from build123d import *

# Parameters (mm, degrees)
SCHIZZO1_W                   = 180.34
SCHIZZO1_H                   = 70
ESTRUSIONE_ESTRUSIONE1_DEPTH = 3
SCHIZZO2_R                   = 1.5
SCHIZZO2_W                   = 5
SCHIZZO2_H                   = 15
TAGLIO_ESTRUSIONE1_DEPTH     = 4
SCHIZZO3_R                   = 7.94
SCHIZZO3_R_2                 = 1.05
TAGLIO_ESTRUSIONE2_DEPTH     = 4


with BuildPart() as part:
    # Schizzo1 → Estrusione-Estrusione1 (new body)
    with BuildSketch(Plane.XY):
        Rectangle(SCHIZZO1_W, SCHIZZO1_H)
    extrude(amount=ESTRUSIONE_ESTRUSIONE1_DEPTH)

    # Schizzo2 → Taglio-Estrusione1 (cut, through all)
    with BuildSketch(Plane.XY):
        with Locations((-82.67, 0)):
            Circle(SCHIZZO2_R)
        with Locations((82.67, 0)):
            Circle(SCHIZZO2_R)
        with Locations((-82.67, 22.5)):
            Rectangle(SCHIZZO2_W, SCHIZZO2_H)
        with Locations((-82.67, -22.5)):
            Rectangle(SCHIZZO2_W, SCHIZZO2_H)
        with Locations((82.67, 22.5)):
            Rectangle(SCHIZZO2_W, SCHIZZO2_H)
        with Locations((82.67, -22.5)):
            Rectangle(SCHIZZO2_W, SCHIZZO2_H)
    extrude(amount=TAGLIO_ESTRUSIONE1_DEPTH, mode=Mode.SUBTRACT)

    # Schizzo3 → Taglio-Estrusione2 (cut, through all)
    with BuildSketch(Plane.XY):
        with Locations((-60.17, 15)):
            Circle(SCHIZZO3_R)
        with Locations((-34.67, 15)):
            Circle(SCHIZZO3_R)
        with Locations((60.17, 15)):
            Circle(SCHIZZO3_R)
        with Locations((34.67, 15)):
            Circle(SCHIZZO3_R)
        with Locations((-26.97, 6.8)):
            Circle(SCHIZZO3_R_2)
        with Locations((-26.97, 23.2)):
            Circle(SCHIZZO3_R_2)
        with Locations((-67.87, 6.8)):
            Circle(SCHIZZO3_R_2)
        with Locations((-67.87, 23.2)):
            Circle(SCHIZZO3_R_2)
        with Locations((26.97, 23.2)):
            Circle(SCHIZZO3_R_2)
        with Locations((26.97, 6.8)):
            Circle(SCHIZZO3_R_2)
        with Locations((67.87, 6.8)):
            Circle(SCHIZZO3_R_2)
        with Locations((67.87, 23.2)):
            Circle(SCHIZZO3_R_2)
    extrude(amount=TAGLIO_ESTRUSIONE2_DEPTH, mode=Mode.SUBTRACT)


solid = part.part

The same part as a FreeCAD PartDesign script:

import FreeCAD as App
import Part
import Sketcher
Q = App.Units.Quantity


def add_polygon(sketch, points):
    """Adds a closed chain of lines whose ends are joined by coincident constraints."""
    first, n = sketch.GeometryCount, len(points)
    for a, b in zip(points, points[1:] + points[:1]):
        sketch.addGeometry(Part.LineSegment(App.Vector(*a, 0), App.Vector(*b, 0)), False)
    for i in range(n):
        sketch.addConstraint(Sketcher.Constraint("Coincident", first + i, 2, first + (i + 1) % n, 1))

doc = App.newDocument("Part")
body = doc.addObject("PartDesign::Body", "Body")

# Sketch on XY plane
sketch1 = body.newObject("Sketcher::SketchObject", "Sketch")
sketch1.AttachmentSupport = (doc.getObject("XY_Plane"), [""])
sketch1.MapMode = "FlatFace"
add_polygon(sketch1, [(-90, 35), (-90, -35), (90, -35), (90, 35)])  # lines 0-3
sketch1.addConstraint(Sketcher.Constraint("Vertical", 0))
sketch1.addConstraint(Sketcher.Constraint("Horizontal", 1))
sketch1.addConstraint(Sketcher.Constraint("Vertical", 2))
sketch1.addConstraint(Sketcher.Constraint("Horizontal", 3))
sketch1.addConstraint(Sketcher.Constraint("Symmetric", 0, 2, 2, 2, -1, 1))
sketch1.addConstraint(Sketcher.Constraint("DistanceY", 0, 2, 0, 1, Q("70 mm")))
sketch1.addConstraint(Sketcher.Constraint("DistanceX", 1, 1, 1, 2, Q("180.34 mm")))
pad1 = body.newObject("PartDesign::Pad", "Pad")
pad1.Profile = sketch1
pad1.Length = 3

# Sketch on XY plane
sketch2 = body.newObject("Sketcher::SketchObject", "Sketch001")
sketch2.AttachmentSupport = (doc.getObject("XY_Plane"), [""])
sketch2.MapMode = "FlatFace"
sketch2.addGeometry(Part.Circle(App.Vector(-82.7, 0, 0), App.Vector(0, 0, 1), 1.5), False)  # 0
sketch2.addGeometry(Part.Circle(App.Vector(82.7, 0, 0), App.Vector(0, 0, 1), 1.5), False)  # 1
add_polygon(sketch2, [(-85.2, 30), (-85.2, 15), (-80.2, 15), (-80.2, 30)])  # lines 2-5
add_polygon(sketch2, [(-85.2, -15), (-85.2, -30), (-80.2, -30), (-80.2, -15)])  # lines 6-9
add_polygon(sketch2, [(80.2, 30), (80.2, 15), (85.2, 15), (85.2, 30)])  # lines 10-13
add_polygon(sketch2, [(80.2, -15), (80.2, -30), (85.2, -30), (85.2, -15)])  # lines 14-17
sketch2.addConstraint(Sketcher.Constraint("Vertical", 2))
sketch2.addConstraint(Sketcher.Constraint("Horizontal", 3))
sketch2.addConstraint(Sketcher.Constraint("Vertical", 4))
sketch2.addConstraint(Sketcher.Constraint("Horizontal", 5))
sketch2.addConstraint(Sketcher.Constraint("Vertical", 6))
sketch2.addConstraint(Sketcher.Constraint("Horizontal", 7))
sketch2.addConstraint(Sketcher.Constraint("Vertical", 8))
sketch2.addConstraint(Sketcher.Constraint("Horizontal", 9))
sketch2.addConstraint(Sketcher.Constraint("Vertical", 10))
sketch2.addConstraint(Sketcher.Constraint("Horizontal", 11))
sketch2.addConstraint(Sketcher.Constraint("Vertical", 12))
sketch2.addConstraint(Sketcher.Constraint("Horizontal", 13))
sketch2.addConstraint(Sketcher.Constraint("Vertical", 14))
sketch2.addConstraint(Sketcher.Constraint("Horizontal", 15))
sketch2.addConstraint(Sketcher.Constraint("Vertical", 16))
sketch2.addConstraint(Sketcher.Constraint("Horizontal", 17))
sketch2.addConstraint(Sketcher.Constraint("Equal", 0, 1))
sketch2.addConstraint(Sketcher.Constraint("Symmetric", 0, 3, 1, 3, -1, 1))
sketch2.addConstraint(Sketcher.Constraint("Symmetric", 8, 2, 10, 2, -1, 1))
sketch2.addConstraint(Sketcher.Constraint("Symmetric", 6, 2, 12, 2, -1, 1))
sketch2.addConstraint(Sketcher.Constraint("Symmetric", 4, 2, 14, 2, -1, 1))
sketch2.addConstraint(Sketcher.Constraint("Symmetric", 2, 2, 16, 2, -1, 1))
sketch2.addConstraint(Sketcher.Constraint("Symmetric", 3, 2, 10, 2, -2))
sketch2.addConstraint(Sketcher.Constraint("Symmetric", 5, 2, 12, 2, -2))
sketch2.addConstraint(Sketcher.Constraint("PointOnObject", 0, 3, -1))
sketch2.addConstraint(Sketcher.Constraint("Diameter", 0, Q("3 mm")))
sketch2.addConstraint(Sketcher.Constraint("DistanceX", 3, 1, 3, 2, Q("5 mm")))
sketch2.addConstraint(Sketcher.Constraint("DistanceY", 2, 2, 2, 1, Q("15 mm")))
sketch2.addConstraint(Sketcher.Constraint("DistanceY", -1, 1, 2, 2, Q("15 mm")))
sketch2.addConstraint(Sketcher.Constraint("DistanceX", 2, 2, 0, 3, Q("2.5 mm")))
sketch2.addConstraint(Sketcher.Constraint("DistanceX", 0, 3, -1, 1, Q("82.67 mm")))
pocket1 = body.newObject("PartDesign::Pocket", "Pocket")
pocket1.Profile = sketch2
pocket1.Type = "ThroughAll"
pocket1.Reversed = True

# Sketch on XY plane
sketch3 = body.newObject("Sketcher::SketchObject", "Sketch002")
sketch3.AttachmentSupport = (doc.getObject("XY_Plane"), [""])
sketch3.MapMode = "FlatFace"
sketch3.addGeometry(Part.Circle(App.Vector(-60.2, 15, 0), App.Vector(0, 0, 1), 7.9), False)
sketch3.addGeometry(Part.Circle(App.Vector(-34.7, 15, 0), App.Vector(0, 0, 1), 7.9), False)
sketch3.addGeometry(Part.Circle(App.Vector(60.2, 15, 0), App.Vector(0, 0, 1), 7.9), False)
sketch3.addGeometry(Part.Circle(App.Vector(34.7, 15, 0), App.Vector(0, 0, 1), 7.9), False)
sketch3.addGeometry(Part.Circle(App.Vector(-27, 6.8, 0), App.Vector(0, 0, 1), 1.1), False)
sketch3.addGeometry(Part.Circle(App.Vector(-27, 23.2, 0), App.Vector(0, 0, 1), 1.1), False)
sketch3.addGeometry(Part.Circle(App.Vector(-67.9, 6.8, 0), App.Vector(0, 0, 1), 1.1), False)
sketch3.addGeometry(Part.Circle(App.Vector(-67.9, 23.2, 0), App.Vector(0, 0, 1), 1.1), False)
sketch3.addGeometry(Part.Circle(App.Vector(27, 23.2, 0), App.Vector(0, 0, 1), 1.1), False)
sketch3.addGeometry(Part.Circle(App.Vector(27, 6.8, 0), App.Vector(0, 0, 1), 1.1), False)
sketch3.addGeometry(Part.Circle(App.Vector(67.9, 6.8, 0), App.Vector(0, 0, 1), 1.1), False)
sketch3.addGeometry(Part.Circle(App.Vector(67.9, 23.2, 0), App.Vector(0, 0, 1), 1.1), False)
sketch3.addConstraint(Sketcher.Constraint("Equal", 0, 1))
sketch3.addConstraint(Sketcher.Constraint("Equal", 1, 2))
sketch3.addConstraint(Sketcher.Constraint("Equal", 2, 3))
sketch3.addConstraint(Sketcher.Constraint("Equal", 4, 5))
sketch3.addConstraint(Sketcher.Constraint("Equal", 5, 6))
sketch3.addConstraint(Sketcher.Constraint("Equal", 6, 7))
sketch3.addConstraint(Sketcher.Constraint("Equal", 7, 8))
sketch3.addConstraint(Sketcher.Constraint("Equal", 8, 9))
sketch3.addConstraint(Sketcher.Constraint("Equal", 9, 10))
sketch3.addConstraint(Sketcher.Constraint("Equal", 10, 11))
sketch3.addConstraint(Sketcher.Constraint("Symmetric", 0, 3, 2, 3, -2))
sketch3.addConstraint(Sketcher.Constraint("Symmetric", 1, 3, 3, 3, -2))
sketch3.addConstraint(Sketcher.Constraint("Symmetric", 5, 3, 8, 3, -2))
sketch3.addConstraint(Sketcher.Constraint("Symmetric", 4, 3, 9, 3, -2))
sketch3.addConstraint(Sketcher.Constraint("Symmetric", 6, 3, 10, 3, -2))
sketch3.addConstraint(Sketcher.Constraint("Symmetric", 7, 3, 11, 3, -2))
sketch3.addConstraint(Sketcher.Constraint("Horizontal", 0, 3, 1, 3))
sketch3.addConstraint(Sketcher.Constraint("Horizontal", 4, 3, 6, 3))
sketch3.addConstraint(Sketcher.Constraint("Horizontal", 5, 3, 7, 3))
sketch3.addConstraint(Sketcher.Constraint("Vertical", 4, 3, 5, 3))
sketch3.addConstraint(Sketcher.Constraint("Vertical", 6, 3, 7, 3))
sketch3.addConstraint(Sketcher.Constraint("Diameter", 4, Q("2.1 mm")))
sketch3.addConstraint(Sketcher.Constraint("Diameter", 0, Q("15.88 mm")))
sketch3.addConstraint(Sketcher.Constraint("DistanceY", -1, 1, 0, 3, Q("15 mm")))
sketch3.addConstraint(Sketcher.Constraint("DistanceY", -1, 1, 4, 3, Q("6.8 mm")))
sketch3.addConstraint(Sketcher.Constraint("DistanceY", -1, 1, 5, 3, Q("23.2 mm")))
sketch3.addConstraint(Sketcher.Constraint("DistanceX", 0, 3, 1, 3, Q("25.5 mm")))
sketch3.addConstraint(Sketcher.Constraint("DistanceX", 1, 3, 4, 3, Q("7.7 mm")))
sketch3.addConstraint(Sketcher.Constraint("DistanceX", 6, 3, 0, 3, Q("7.7 mm")))
sketch3.addConstraint(Sketcher.Constraint("DistanceX", 0, 3, -1, 1, Q("60.17 mm")))
pocket2 = body.newObject("PartDesign::Pocket", "Pocket001")
pocket2.Profile = sketch3
pocket2.Type = "ThroughAll"
pocket2.Reversed = True

doc.recompute()
